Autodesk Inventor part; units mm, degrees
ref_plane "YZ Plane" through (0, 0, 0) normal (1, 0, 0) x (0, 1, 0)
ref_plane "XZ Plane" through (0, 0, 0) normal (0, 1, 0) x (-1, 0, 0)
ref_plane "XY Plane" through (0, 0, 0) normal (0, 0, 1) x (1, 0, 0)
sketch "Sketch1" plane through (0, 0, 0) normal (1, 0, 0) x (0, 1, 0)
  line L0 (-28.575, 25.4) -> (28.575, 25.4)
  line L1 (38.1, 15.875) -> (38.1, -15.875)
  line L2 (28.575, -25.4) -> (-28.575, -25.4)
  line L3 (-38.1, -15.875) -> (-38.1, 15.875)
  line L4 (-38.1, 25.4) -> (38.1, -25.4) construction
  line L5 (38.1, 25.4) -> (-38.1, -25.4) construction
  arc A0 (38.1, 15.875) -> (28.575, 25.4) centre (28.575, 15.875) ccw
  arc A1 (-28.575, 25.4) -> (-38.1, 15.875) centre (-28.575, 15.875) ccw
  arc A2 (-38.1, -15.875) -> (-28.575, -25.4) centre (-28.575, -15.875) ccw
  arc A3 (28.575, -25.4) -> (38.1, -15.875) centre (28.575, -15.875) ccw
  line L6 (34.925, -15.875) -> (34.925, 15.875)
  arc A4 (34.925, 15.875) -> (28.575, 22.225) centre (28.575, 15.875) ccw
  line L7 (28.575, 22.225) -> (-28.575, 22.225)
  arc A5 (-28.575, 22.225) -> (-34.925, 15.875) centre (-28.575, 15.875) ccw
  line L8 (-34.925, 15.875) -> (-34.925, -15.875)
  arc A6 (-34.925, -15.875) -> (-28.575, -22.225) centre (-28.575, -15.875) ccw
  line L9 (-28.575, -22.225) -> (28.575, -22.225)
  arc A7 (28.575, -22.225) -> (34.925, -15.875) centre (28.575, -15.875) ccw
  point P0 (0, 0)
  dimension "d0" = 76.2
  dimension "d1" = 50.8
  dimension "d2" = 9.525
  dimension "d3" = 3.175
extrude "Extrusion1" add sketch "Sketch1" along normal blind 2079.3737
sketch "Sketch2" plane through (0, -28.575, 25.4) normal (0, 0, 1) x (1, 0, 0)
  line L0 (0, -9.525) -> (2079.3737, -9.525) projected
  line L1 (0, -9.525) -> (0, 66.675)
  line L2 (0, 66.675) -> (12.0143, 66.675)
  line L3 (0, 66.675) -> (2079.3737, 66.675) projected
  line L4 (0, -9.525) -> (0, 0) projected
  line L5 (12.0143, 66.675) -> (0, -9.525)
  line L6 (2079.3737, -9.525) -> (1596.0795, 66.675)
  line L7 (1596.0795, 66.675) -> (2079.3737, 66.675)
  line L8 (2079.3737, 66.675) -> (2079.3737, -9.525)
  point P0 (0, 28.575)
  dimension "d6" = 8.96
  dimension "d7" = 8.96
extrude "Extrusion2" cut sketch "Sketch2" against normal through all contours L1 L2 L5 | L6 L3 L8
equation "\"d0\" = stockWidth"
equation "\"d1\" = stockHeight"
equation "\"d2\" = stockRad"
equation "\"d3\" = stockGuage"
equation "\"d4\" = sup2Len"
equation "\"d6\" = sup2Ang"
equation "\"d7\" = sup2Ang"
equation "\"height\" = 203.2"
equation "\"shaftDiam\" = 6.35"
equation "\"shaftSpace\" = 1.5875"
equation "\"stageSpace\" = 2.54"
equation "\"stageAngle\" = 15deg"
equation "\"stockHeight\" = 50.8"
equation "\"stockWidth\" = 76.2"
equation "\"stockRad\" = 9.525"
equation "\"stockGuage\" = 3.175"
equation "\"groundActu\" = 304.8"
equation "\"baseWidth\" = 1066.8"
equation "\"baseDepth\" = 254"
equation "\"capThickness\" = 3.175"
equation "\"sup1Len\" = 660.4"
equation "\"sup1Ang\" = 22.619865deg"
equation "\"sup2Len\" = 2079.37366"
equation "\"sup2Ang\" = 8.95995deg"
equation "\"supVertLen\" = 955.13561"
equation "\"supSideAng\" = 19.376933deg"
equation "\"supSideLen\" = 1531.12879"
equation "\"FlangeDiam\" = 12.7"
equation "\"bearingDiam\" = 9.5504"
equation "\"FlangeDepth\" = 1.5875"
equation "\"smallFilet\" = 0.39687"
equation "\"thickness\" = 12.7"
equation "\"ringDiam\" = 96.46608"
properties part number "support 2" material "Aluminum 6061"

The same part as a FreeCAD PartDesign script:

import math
import FreeCAD as App
import Part
import Sketcher
Q = App.Units.Quantity

doc = App.newDocument("Part")
body = doc.addObject("PartDesign::Body", "Body")

# Sketch on YZ plane
sketch1 = doc.addObject("Sketcher::SketchObject", "Sketch")
body.addObject(sketch1)
sketch1.AttachmentSupport = (doc.YZ_Plane, [""])
sketch1.MapMode = "FlatFace"
sketch1.addGeometry([
    Part.LineSegment(App.Vector(28.575, 25.4, 0), App.Vector(-28.575, 25.4, 0)),  # 0
    Part.ArcOfCircle(Part.Circle(App.Vector(-28.575, 15.875, 0), App.Vector(0, 0, 1), 9.525), math.radians(90), math.radians(180)),  # 1
    Part.LineSegment(App.Vector(-38.1, 15.875, 0), App.Vector(-38.1, -15.875, 0)),  # 2
    Part.ArcOfCircle(Part.Circle(App.Vector(-28.575, -15.875, 0), App.Vector(0, 0, 1), 9.525), math.radians(180), math.radians(270)),  # 3
    Part.LineSegment(App.Vector(-28.575, -25.4, 0), App.Vector(28.575, -25.4, 0)),  # 4
    Part.ArcOfCircle(Part.Circle(App.Vector(28.575, -15.875, 0), App.Vector(0, 0, 1), 9.525), math.radians(-90), math.radians(0)),  # 5
    Part.LineSegment(App.Vector(38.1, -15.875, 0), App.Vector(38.1, 15.875, 0)),  # 6
    Part.ArcOfCircle(Part.Circle(App.Vector(28.575, 15.875, 0), App.Vector(0, 0, 1), 9.525), math.radians(0), math.radians(90)),  # 7
    Part.LineSegment(App.Vector(34.925, 15.875, 0), App.Vector(34.925, -15.875, 0)),  # 8
    Part.ArcOfCircle(Part.Circle(App.Vector(28.575, -15.875, 0), App.Vector(0, 0, 1), 6.35), math.radians(-90), math.radians(0)),  # 9
    Part.LineSegment(App.Vector(28.575, -22.225, 0), App.Vector(-28.575, -22.225, 0)),  # 10
    Part.ArcOfCircle(Part.Circle(App.Vector(-28.575, -15.875, 0), App.Vector(0, 0, 1), 6.35), math.radians(180), math.radians(270)),  # 11
    Part.LineSegment(App.Vector(-34.925, -15.875, 0), App.Vector(-34.925, 15.875, 0)),  # 12
    Part.ArcOfCircle(Part.Circle(App.Vector(-28.575, 15.875, 0), App.Vector(0, 0, 1), 6.35), math.radians(90), math.radians(180)),  # 13
    Part.LineSegment(App.Vector(-28.575, 22.225, 0), App.Vector(28.575, 22.225, 0)),  # 14
    Part.ArcOfCircle(Part.Circle(App.Vector(28.575, 15.875, 0), App.Vector(0, 0, 1), 6.35), math.radians(0), math.radians(90)),  # 15
], False)
sketch1.addConstraint([
    Sketcher.Constraint("Tangent", 0, 2, 1, 1),
    Sketcher.Constraint("Tangent", 1, 2, 2, 1),
    Sketcher.Constraint("Tangent", 2, 2, 3, 1),
    Sketcher.Constraint("Tangent", 3, 2, 4, 1),
    Sketcher.Constraint("Tangent", 4, 2, 5, 1),
    Sketcher.Constraint("Tangent", 5, 2, 6, 1),
    Sketcher.Constraint("Tangent", 6, 2, 7, 1),
    Sketcher.Constraint("Tangent", 7, 2, 0, 1),
    Sketcher.Constraint("Tangent", 8, 2, 9, 2),
    Sketcher.Constraint("Tangent", 9, 1, 10, 1),
    Sketcher.Constraint("Tangent", 10, 2, 11, 2),
    Sketcher.Constraint("Tangent", 11, 1, 12, 1),
    Sketcher.Constraint("Tangent", 12, 2, 13, 2),
    Sketcher.Constraint("Tangent", 13, 1, 14, 1),
    Sketcher.Constraint("Tangent", 14, 2, 15, 2),
    Sketcher.Constraint("Tangent", 15, 1, 8, 1),
    Sketcher.Constraint("Horizontal", 0),
    Sketcher.Constraint("Vertical", 2),
    Sketcher.Constraint("Horizontal", 4),
    Sketcher.Constraint("Vertical", 6),
    Sketcher.Constraint("Vertical", 8),
    Sketcher.Constraint("Horizontal", 10),
    Sketcher.Constraint("Vertical", 12),
    Sketcher.Constraint("Horizontal", 14),
    Sketcher.Constraint("Coincident", 9, 3, 5, 3),
    Sketcher.Constraint("Coincident", 11, 3, 3, 3),
    Sketcher.Constraint("Coincident", 13, 3, 1, 3),
    Sketcher.Constraint("Equal", 1, 3),
    Sketcher.Constraint("Equal", 3, 5),
    Sketcher.Constraint("Equal", 5, 7),
    Sketcher.Constraint("Equal", 13, 15),
    Sketcher.Constraint("Symmetric", 1, 3, 5, 3, -1, 1),
    Sketcher.Constraint("Radius", 1, Q("0.375 in")),
    Sketcher.Constraint("Radius", 9, Q("0.25 in")),
    Sketcher.Constraint("DistanceY", -1, 1, 0, 2, Q("1 in")),
    Sketcher.Constraint("DistanceX", 0, 2, 0, 1, Q("2.25 in")),
])
pad1 = doc.addObject("PartDesign::Pad", "Pad")
body.addObject(pad1)
pad1.Profile = sketch1
pad1.Length = Q("81.8651063 in")

# Sketch on XY plane
sketch2 = doc.addObject("Sketcher::SketchObject", "Sketch001")
body.addObject(sketch2)
sketch2.AttachmentSupport = (doc.XY_Plane, [""])
sketch2.MapMode = "FlatFace"
sketch2.AttachmentOffset = App.Placement(App.Vector(0, 0, 1 * 25.4), App.Rotation())
sketch2.addGeometry([
    Part.LineSegment(App.Vector(0, 38.1, 0), App.Vector(0, -38.1, 0)),  # 0
    Part.LineSegment(App.Vector(0, -38.1, 0), App.Vector(12.0143, 38.1, 0)),  # 1
    Part.LineSegment(App.Vector(12.0143, 38.1, 0), App.Vector(0, 38.1, 0)),  # 2
    Part.LineSegment(App.Vector(1596.0795, 38.1, 0), App.Vector(2079.3737, -38.1, 0)),  # 3
    Part.LineSegment(App.Vector(2079.3737, -38.1, 0), App.Vector(2079.3737, 38.1, 0)),  # 4
    Part.LineSegment(App.Vector(2079.3737, 38.1, 0), App.Vector(1596.0795, 38.1, 0)),  # 5
], False)
sketch2.addConstraint([
    Sketcher.Constraint("Coincident", 0, 2, 1, 1),
    Sketcher.Constraint("Coincident", 1, 2, 2, 1),
    Sketcher.Constraint("Coincident", 2, 2, 0, 1),
    Sketcher.Constraint("Coincident", 3, 2, 4, 1),
    Sketcher.Constraint("Coincident", 4, 2, 5, 1),
    Sketcher.Constraint("Coincident", 5, 2, 3, 1),
    Sketcher.Constraint("Vertical", 0),
    Sketcher.Constraint("Horizontal", 2),
    Sketcher.Constraint("Vertical", 4),
    Sketcher.Constraint("Horizontal", 5),
    Sketcher.Constraint("PointOnObject", 0, 2, -2),
    Sketcher.Constraint("DistanceY", 0, 2, 0, 1, Q("3 in")),
    Sketcher.Constraint("DistanceY", 4, 1, 4, 2, Q("3 in")),
    Sketcher.Constraint("DistanceY", 3, 2, 1, 2, Q("3 in")),
    Sketcher.Constraint("DistanceY", 0, 2, -1, 1, Q("1.5 in")),
    Sketcher.Constraint("DistanceX", 2, 2, 2, 1, Q("0.473 in")),
    Sketcher.Constraint("DistanceX", 5, 2, 5, 1, Q("483.2942 mm")),
    Sketcher.Constraint("DistanceX", -1, 1, 3, 2, Q("81.8651 in")),
])
pocket1 = doc.addObject("PartDesign::Pocket", "Pocket")
body.addObject(pocket1)
pocket1.Profile = sketch2
pocket1.Type = "ThroughAll"

doc.recompute()
